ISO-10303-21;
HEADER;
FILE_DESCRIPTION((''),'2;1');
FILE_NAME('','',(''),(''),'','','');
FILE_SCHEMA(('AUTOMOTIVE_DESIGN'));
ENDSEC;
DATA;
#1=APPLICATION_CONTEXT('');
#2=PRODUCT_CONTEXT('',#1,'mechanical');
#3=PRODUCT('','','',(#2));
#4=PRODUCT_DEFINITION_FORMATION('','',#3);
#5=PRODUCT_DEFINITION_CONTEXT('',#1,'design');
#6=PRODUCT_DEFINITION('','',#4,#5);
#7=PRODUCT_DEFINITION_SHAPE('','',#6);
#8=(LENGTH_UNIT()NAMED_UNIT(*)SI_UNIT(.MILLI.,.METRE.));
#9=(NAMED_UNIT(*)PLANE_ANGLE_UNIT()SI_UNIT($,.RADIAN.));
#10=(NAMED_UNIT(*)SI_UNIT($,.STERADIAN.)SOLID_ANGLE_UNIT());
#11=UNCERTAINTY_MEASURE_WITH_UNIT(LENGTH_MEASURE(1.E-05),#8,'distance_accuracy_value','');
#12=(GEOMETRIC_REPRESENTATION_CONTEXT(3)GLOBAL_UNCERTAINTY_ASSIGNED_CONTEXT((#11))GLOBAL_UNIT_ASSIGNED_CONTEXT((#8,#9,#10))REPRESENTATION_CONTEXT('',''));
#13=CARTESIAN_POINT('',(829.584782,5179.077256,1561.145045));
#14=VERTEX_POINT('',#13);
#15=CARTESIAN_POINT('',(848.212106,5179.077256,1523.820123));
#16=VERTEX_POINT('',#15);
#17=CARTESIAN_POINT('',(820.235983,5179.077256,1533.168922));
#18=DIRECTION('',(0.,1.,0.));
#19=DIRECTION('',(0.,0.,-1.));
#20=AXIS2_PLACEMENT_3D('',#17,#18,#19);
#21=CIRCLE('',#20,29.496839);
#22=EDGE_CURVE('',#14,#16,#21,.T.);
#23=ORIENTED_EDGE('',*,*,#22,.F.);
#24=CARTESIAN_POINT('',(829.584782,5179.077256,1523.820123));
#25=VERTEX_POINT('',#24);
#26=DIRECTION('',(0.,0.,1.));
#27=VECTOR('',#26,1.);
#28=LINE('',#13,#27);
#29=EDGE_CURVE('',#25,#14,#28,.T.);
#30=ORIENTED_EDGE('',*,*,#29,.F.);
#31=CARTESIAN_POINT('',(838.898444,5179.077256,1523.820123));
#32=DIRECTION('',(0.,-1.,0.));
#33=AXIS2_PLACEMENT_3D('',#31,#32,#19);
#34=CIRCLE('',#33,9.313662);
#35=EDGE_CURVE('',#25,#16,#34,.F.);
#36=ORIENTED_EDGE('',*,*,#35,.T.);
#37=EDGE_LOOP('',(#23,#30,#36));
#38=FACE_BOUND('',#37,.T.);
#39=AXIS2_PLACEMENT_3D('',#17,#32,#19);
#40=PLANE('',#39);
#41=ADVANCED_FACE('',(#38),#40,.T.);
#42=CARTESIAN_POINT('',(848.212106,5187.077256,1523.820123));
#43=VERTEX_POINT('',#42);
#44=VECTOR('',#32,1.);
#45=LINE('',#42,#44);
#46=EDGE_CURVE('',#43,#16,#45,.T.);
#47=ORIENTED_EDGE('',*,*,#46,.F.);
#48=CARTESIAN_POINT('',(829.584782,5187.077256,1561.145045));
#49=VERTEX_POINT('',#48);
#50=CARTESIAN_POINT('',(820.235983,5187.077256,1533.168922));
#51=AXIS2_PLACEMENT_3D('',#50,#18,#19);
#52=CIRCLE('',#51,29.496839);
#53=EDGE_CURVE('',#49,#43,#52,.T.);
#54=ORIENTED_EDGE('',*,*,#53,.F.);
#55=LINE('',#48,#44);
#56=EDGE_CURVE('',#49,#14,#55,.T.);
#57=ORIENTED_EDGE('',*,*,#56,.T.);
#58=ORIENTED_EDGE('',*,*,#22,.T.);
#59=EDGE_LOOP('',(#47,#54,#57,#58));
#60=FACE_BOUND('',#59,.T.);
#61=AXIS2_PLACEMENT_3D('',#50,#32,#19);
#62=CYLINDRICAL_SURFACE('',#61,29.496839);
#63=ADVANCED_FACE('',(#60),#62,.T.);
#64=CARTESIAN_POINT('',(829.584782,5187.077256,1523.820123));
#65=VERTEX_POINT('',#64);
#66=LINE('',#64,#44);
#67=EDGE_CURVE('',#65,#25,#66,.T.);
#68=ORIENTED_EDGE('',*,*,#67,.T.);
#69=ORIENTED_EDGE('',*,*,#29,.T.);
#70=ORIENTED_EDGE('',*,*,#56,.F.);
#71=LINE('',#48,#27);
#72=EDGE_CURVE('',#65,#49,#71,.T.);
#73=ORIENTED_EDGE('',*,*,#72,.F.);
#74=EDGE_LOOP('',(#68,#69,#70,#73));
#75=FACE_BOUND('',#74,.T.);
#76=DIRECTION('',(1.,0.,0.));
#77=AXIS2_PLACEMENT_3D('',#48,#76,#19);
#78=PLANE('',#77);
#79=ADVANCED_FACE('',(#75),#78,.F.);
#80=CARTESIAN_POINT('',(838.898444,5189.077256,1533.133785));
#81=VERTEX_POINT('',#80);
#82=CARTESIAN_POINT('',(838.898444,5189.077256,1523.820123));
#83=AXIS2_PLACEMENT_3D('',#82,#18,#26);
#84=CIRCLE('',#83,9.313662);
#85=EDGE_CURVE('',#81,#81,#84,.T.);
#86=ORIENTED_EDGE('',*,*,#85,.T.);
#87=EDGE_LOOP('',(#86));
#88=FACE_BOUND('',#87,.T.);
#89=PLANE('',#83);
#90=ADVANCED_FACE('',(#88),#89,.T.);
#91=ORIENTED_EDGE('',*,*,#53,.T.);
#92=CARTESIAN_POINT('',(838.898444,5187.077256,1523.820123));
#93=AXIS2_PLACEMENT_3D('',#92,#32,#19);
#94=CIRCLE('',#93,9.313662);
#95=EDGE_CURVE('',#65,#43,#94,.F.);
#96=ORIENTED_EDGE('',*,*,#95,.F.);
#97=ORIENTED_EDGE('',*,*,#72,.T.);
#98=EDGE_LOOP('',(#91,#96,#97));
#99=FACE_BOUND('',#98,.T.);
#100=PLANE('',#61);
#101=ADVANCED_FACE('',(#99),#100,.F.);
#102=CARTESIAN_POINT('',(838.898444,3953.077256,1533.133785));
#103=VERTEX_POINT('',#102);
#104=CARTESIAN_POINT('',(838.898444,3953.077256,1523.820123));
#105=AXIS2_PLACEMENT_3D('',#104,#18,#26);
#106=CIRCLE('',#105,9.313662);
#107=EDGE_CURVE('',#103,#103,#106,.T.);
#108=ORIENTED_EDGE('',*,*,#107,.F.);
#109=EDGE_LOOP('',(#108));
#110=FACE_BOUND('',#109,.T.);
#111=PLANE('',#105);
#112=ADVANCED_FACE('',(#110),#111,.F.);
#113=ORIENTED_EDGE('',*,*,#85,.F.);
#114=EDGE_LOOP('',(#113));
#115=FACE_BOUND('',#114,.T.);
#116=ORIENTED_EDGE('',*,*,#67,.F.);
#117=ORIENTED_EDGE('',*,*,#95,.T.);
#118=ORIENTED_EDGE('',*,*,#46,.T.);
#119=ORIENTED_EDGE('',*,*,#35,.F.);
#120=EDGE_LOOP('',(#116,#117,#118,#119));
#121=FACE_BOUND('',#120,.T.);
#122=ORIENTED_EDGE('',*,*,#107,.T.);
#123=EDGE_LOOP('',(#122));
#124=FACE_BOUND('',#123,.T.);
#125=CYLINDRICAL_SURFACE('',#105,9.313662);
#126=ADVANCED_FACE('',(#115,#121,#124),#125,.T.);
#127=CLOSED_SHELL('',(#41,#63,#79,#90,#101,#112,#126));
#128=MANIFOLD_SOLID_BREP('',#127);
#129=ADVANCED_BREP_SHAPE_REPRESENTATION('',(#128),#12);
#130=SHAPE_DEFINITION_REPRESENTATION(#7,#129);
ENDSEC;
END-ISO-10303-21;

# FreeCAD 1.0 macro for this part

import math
import FreeCAD as App
import Part
import Sketcher
from FreeCAD import Vector
Q = App.Units.Quantity

doc = App.newDocument("Part")
params = doc.addObject("Spreadsheet::Sheet", "Params")
for row, (alias, value) in enumerate([
    ("pad1_length", "950 mm"),
    ("pad1_length2", "286 mm"),
    ("pad2_length", "3 mm"),
    ("pad2_length2", "5 mm"),
], start=1):
    params.set(f"A{row}", alias)
    params.set(f"B{row}", "=" + value)
    params.setAlias(f"B{row}", alias)

body = doc.addObject("PartDesign::Body", "Body")

sketch1 = body.newObject("Sketcher::SketchObject", "Sketch")
sketch1.AttachmentSupport = (doc.getObject("XZ_Plane"), [""])
sketch1.MapMode = "FlatFace"
sketch1.AttachmentOffset = App.Placement(Vector(0, 0, -4239.077256), App.Rotation())
sketch1.addGeometry(Part.Circle(Vector(839, 1524, 0), Vector(0, 0, 1), 9), False)
sketch1.addConstraint(Sketcher.Constraint("Diameter", 0, Q("18.627324 mm")))
sketch1.addConstraint(Sketcher.Constraint("DistanceX", -1, 1, 0, 3, Q("838.898444 mm")))
sketch1.addConstraint(Sketcher.Constraint("DistanceY", -1, 1, 0, 3, Q("1523.820123 mm")))
pad1 = body.newObject("PartDesign::Pad", "Pad")
pad1.Profile = sketch1
pad1.Type = "TwoLengths"
pad1.setExpression("Length", "Params.pad1_length")
pad1.setExpression("Length2", "Params.pad1_length2")
pad1.Reversed = True

sketch2 = body.newObject("Sketcher::SketchObject", "Sketch001")
sketch2.AttachmentSupport = (doc.getObject("XZ_Plane"), [""])
sketch2.MapMode = "FlatFace"
sketch2.AttachmentOffset = App.Placement(Vector(0, 0, -5184.077256), App.Rotation())
sketch2.addGeometry(Part.LineSegment(Vector(830, 1524, 0), Vector(830, 1561, 0)), False)
sketch2.addGeometry(Part.ArcOfCircle(Part.Circle(Vector(820, 1533, 0), Vector(0, 0, 1), 29), math.radians(-18), math.radians(72)), False)
sketch2.addGeometry(Part.LineSegment(Vector(848, 1524, 0), Vector(830, 1524, 0)), False)
sketch2.addConstraint(Sketcher.Constraint("Coincident", 0, 2, 1, 2))
sketch2.addConstraint(Sketcher.Constraint("Coincident", 1, 1, 2, 1))
sketch2.addConstraint(Sketcher.Constraint("Coincident", 2, 2, 0, 1))
sketch2.addConstraint(Sketcher.Constraint("Vertical", 0))
sketch2.addConstraint(Sketcher.Constraint("Horizontal", 2))
sketch2.addConstraint(Sketcher.Constraint("Radius", 1, Q("29.496839 mm")))
sketch2.addConstraint(Sketcher.Constraint("DistanceX", 1, 3, 0, 2, Q("9.348799 mm")))
sketch2.addConstraint(Sketcher.Constraint("DistanceY", 1, 1, 1, 3, Q("9.348799 mm")))
sketch2.addConstraint(Sketcher.Constraint("DistanceY", -1, 1, 1, 3, Q("1533.168922 mm")))
sketch2.addConstraint(Sketcher.Constraint("DistanceX", -1, 1, 0, 2, Q("829.584782 mm")))
pad2 = body.newObject("PartDesign::Pad", "Pad001")
pad2.Profile = sketch2
pad2.Type = "TwoLengths"
pad2.setExpression("Length", "Params.pad2_length")
pad2.setExpression("Length2", "Params.pad2_length2")
pad2.Reversed = True

doc.recompute()
